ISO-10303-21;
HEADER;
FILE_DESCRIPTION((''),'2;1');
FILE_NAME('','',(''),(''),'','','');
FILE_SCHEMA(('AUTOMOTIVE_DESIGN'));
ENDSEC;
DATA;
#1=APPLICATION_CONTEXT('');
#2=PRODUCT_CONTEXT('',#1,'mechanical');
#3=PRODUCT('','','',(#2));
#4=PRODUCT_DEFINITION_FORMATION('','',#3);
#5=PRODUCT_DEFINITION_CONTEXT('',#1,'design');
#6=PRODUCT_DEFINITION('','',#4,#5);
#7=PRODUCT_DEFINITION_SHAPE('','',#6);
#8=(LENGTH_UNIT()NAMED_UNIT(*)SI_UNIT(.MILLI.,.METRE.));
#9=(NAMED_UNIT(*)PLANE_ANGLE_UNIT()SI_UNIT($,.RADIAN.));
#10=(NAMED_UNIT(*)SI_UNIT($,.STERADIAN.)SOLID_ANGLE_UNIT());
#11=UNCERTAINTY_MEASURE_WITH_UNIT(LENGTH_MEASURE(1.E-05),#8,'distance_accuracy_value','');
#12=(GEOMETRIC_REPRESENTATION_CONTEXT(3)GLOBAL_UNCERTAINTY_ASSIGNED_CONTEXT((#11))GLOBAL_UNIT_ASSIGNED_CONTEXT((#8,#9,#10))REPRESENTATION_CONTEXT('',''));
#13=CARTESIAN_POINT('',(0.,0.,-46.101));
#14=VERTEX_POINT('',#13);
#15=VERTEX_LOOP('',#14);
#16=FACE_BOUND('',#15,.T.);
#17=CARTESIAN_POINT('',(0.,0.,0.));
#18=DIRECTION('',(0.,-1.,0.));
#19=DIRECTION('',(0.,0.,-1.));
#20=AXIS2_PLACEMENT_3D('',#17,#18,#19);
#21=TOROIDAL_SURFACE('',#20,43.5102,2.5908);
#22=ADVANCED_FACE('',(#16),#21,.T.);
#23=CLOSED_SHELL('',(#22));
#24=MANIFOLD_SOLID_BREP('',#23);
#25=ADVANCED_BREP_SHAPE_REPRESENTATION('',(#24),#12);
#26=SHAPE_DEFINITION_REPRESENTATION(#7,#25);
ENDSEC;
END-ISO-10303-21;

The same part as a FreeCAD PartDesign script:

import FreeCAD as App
import Part
import Sketcher
from FreeCAD import Vector
Q = App.Units.Quantity

doc = App.newDocument("Part")
body = doc.addObject("PartDesign::Body", "Body")

sketch1 = doc.addObject("Sketcher::SketchObject", "Sketch")
body.addObject(sketch1)
sketch1.AttachmentSupport = (doc.XY_Plane, [""])
sketch1.MapMode = "FlatFace"
sketch1.addGeometry(Part.Circle(Vector(-43.5102, 0, 0), Vector(0, 0, 1), 2.5908), False)
sketch1.addConstraint([
    Sketcher.Constraint("PointOnObject", 0, 3, -1),
    Sketcher.Constraint("Diameter", 0, Q("0.204 in")),
    Sketcher.Constraint("DistanceX", 0, 3, -1, 1, Q("1.713 in")),
])
revolution = doc.addObject("PartDesign::Revolution", "Revolution")
body.addObject(revolution)
revolution.Profile = sketch1
revolution.ReferenceAxis = (sketch1, ["V_Axis"])
revolution.Angle = 360

doc.recompute()
